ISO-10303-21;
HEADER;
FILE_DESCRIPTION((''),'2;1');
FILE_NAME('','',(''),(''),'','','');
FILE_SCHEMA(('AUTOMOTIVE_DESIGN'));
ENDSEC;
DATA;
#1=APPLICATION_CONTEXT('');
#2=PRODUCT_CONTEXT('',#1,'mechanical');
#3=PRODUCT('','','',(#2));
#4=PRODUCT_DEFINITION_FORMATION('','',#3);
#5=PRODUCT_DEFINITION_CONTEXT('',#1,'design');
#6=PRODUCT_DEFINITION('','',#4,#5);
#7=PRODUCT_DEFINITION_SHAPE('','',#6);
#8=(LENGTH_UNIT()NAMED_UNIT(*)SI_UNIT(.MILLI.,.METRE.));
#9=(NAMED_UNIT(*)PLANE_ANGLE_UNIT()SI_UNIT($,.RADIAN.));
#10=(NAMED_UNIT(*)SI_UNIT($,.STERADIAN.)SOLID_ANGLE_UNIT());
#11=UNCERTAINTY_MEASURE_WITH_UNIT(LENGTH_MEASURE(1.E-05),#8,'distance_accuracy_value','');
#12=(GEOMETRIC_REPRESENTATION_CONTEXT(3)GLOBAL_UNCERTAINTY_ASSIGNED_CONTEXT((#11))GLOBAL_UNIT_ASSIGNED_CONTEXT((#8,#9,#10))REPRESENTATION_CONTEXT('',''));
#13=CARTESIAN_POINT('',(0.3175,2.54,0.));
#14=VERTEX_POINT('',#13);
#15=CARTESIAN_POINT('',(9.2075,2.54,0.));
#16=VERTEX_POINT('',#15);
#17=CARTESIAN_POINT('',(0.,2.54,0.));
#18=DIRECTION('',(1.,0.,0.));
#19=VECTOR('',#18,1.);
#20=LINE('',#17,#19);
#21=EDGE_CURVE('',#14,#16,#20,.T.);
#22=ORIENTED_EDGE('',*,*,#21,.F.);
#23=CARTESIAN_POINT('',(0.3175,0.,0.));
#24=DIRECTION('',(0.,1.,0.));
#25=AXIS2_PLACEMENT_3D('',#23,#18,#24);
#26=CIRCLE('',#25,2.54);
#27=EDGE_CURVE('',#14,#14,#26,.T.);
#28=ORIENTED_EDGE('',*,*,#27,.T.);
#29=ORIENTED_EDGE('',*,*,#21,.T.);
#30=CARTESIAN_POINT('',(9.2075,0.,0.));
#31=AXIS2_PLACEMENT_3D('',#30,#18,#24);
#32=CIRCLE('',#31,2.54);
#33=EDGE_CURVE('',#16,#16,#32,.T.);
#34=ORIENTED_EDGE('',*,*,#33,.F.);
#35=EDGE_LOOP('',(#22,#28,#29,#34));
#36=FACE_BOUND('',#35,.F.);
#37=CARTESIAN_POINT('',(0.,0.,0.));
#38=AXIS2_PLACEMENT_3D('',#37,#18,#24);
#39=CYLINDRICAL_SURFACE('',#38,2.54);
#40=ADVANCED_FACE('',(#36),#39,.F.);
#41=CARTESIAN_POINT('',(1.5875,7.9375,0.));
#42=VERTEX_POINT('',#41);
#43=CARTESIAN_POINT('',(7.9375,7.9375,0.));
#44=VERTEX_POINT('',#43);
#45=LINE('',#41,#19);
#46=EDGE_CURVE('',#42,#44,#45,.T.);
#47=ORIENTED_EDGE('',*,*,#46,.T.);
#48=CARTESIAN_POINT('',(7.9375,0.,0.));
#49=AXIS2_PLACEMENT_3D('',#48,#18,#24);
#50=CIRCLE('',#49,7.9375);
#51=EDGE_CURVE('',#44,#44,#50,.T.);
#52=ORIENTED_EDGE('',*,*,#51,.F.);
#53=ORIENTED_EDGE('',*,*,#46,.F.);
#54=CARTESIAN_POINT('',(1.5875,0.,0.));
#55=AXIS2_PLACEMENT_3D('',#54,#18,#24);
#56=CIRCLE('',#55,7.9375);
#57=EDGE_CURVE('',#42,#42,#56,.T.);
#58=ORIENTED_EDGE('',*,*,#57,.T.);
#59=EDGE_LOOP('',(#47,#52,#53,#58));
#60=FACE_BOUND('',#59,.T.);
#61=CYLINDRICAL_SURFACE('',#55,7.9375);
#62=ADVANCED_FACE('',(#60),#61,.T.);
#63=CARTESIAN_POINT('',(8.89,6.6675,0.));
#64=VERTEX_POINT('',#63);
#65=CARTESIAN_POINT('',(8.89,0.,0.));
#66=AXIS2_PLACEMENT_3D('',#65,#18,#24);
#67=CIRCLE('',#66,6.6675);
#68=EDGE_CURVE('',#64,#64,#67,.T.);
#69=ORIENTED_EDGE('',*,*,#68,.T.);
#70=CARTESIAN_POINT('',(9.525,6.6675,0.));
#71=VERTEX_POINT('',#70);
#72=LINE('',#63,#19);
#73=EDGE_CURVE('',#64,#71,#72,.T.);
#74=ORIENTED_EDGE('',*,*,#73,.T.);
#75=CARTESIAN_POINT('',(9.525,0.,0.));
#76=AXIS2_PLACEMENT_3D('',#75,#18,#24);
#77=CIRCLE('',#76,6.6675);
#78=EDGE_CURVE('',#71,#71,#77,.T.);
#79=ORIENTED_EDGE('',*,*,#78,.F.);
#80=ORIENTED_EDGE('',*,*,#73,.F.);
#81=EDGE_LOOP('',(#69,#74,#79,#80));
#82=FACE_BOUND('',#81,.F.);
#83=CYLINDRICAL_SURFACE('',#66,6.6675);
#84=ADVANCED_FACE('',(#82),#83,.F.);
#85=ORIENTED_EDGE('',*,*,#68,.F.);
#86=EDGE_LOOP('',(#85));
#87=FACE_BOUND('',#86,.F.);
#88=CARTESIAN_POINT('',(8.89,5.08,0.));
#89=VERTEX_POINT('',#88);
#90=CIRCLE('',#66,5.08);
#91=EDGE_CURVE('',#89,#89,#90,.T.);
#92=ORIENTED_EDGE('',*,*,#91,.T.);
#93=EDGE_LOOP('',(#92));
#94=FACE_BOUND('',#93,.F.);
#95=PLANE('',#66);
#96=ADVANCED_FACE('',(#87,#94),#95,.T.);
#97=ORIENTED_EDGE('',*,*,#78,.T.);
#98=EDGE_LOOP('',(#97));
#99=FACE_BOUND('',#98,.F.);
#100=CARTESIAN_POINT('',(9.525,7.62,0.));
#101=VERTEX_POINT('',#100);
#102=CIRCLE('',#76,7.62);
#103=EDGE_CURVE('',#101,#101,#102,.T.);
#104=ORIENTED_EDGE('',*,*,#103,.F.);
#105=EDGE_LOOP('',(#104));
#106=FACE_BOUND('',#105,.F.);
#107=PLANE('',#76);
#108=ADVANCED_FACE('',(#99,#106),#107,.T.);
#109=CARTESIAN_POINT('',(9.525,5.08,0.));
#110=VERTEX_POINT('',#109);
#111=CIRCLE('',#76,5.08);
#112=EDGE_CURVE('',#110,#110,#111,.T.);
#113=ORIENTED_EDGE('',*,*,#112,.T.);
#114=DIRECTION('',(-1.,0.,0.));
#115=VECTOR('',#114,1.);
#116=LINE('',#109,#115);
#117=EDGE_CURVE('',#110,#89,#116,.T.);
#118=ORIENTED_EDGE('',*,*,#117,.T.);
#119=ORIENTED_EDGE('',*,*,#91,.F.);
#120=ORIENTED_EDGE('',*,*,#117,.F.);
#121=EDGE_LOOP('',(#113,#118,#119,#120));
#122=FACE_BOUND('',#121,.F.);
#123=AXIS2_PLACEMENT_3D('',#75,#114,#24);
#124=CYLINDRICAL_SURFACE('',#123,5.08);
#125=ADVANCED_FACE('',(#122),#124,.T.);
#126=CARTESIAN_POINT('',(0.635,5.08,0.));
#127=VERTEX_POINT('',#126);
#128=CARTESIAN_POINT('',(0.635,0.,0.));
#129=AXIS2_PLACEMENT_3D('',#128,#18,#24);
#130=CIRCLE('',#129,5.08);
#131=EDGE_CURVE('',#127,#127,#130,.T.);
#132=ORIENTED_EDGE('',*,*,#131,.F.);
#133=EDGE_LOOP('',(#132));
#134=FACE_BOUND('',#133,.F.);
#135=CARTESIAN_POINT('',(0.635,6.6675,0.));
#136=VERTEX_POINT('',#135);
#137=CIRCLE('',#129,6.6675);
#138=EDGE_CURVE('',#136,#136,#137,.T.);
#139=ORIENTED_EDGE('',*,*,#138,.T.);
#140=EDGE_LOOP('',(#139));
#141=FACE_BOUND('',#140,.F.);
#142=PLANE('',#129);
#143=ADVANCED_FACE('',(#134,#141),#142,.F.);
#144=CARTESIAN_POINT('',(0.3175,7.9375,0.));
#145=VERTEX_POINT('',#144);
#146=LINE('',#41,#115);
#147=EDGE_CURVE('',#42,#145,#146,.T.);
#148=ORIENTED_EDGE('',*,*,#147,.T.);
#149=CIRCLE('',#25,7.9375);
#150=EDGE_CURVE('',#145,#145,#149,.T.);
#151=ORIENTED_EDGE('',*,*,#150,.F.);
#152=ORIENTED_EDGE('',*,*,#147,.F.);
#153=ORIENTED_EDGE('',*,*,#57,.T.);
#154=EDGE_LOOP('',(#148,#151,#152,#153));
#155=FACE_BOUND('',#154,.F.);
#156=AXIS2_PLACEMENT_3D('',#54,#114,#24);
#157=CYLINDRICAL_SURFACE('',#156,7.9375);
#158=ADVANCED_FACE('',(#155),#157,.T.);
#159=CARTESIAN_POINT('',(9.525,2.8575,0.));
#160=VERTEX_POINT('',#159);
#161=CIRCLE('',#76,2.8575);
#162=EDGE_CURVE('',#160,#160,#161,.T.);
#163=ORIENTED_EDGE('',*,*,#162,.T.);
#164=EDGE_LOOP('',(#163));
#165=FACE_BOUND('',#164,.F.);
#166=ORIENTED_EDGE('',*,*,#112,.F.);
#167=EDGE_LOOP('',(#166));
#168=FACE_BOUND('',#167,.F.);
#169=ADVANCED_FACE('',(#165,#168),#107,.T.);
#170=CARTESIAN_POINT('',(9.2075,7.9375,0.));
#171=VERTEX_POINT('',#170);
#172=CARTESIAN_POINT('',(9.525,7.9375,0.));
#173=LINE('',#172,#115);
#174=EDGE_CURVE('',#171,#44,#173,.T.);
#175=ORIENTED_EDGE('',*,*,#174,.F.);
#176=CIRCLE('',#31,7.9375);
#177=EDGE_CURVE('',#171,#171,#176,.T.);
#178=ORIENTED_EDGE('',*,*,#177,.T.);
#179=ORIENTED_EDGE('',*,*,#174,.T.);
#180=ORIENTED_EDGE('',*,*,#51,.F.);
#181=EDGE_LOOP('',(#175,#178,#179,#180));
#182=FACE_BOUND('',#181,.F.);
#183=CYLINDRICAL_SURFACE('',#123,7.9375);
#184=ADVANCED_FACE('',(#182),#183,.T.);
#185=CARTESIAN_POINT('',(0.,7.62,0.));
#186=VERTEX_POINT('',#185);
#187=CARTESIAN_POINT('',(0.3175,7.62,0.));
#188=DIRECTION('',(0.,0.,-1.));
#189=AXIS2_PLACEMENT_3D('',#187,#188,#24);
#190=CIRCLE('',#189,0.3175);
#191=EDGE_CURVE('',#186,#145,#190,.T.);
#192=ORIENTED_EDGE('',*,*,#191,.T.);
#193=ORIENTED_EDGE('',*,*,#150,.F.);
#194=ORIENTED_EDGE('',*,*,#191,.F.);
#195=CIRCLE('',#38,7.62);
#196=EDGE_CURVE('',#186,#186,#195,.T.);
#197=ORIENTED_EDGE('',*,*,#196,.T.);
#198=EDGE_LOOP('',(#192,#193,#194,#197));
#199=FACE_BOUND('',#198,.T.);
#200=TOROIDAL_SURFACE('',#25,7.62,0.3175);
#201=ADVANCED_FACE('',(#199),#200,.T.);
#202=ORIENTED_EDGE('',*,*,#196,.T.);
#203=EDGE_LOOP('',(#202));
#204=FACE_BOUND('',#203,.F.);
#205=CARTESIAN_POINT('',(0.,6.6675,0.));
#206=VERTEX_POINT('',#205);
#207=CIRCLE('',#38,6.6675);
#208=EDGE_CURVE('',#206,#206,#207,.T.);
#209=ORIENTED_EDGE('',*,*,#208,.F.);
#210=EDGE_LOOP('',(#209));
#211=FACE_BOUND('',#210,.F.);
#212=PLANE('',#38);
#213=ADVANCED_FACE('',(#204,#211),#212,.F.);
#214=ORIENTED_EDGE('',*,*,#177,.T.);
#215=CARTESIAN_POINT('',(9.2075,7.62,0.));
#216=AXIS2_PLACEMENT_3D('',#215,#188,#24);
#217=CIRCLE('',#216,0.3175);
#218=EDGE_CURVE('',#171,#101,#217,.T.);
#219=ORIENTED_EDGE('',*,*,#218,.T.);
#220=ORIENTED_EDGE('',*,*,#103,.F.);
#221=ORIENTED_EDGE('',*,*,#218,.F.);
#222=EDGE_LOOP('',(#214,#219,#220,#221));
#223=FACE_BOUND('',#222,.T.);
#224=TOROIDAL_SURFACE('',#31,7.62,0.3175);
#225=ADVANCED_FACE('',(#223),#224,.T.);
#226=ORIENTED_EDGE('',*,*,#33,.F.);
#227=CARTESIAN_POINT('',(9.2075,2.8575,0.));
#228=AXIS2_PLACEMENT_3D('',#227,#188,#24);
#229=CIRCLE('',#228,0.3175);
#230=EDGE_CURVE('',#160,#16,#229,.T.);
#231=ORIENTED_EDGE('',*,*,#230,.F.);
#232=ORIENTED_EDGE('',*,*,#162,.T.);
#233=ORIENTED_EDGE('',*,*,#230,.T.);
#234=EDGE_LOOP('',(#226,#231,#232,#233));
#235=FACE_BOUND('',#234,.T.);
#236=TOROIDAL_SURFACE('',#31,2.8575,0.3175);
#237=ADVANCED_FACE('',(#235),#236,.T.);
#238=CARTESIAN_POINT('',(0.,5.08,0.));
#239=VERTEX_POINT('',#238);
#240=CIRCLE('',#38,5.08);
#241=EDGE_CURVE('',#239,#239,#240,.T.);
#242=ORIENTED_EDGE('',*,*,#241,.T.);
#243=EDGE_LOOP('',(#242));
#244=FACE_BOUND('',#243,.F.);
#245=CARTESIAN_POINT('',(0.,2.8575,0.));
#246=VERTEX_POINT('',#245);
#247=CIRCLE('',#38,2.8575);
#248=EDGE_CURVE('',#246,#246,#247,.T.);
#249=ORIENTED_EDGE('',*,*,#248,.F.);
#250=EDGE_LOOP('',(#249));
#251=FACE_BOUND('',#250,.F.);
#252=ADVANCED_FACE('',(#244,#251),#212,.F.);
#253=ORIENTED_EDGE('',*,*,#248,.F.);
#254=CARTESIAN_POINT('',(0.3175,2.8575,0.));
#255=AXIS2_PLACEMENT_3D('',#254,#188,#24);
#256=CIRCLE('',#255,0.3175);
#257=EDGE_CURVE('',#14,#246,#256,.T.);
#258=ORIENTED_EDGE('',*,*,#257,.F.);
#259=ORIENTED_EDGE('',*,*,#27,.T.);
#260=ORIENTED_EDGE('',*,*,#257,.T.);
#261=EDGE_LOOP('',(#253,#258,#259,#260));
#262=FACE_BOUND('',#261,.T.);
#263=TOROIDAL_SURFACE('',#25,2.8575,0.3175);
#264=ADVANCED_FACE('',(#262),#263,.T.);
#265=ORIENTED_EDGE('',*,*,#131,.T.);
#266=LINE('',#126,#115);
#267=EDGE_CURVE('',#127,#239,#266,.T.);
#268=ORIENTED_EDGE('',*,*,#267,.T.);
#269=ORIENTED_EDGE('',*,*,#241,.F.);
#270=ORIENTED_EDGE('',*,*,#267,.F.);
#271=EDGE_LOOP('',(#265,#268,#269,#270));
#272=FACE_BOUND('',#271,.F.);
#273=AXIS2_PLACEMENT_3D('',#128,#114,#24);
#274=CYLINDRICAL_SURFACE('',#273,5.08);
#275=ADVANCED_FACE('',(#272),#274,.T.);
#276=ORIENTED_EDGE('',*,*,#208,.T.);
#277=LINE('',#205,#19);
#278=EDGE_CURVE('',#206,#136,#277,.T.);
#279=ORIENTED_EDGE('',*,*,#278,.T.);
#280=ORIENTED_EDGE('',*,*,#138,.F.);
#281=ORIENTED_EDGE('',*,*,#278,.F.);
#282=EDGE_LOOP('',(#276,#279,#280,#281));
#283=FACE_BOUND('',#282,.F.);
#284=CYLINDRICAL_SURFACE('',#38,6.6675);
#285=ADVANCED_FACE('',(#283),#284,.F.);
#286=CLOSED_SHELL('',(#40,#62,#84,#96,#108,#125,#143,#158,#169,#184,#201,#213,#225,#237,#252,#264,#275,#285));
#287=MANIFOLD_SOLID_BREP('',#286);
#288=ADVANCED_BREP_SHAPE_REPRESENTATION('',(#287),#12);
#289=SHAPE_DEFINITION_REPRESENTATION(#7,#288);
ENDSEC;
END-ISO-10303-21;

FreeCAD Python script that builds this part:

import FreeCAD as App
import Part
import Sketcher
from FreeCAD import Vector
Q = App.Units.Quantity


def edges_at(feature, points):
    """Names of the edges that pass closest to the given points."""
    edges = feature.Shape.Edges
    near = lambda p: min(range(len(edges)), key=lambda i: edges[i].distToShape(Part.Vertex(*p))[0])
    return sorted({f"Edge{near(p) + 1}" for p in points})


def add_polygon(sketch, points):
    """Adds a closed chain of lines whose ends are joined by coincident constraints."""
    first, n = sketch.GeometryCount, len(points)
    for a, b in zip(points, points[1:] + points[:1]):
        sketch.addGeometry(Part.LineSegment(App.Vector(*a, 0), App.Vector(*b, 0)), False)
    for i in range(n):
        sketch.addConstraint(Sketcher.Constraint("Coincident", first + i, 2, first + (i + 1) % n, 1))

doc = App.newDocument("Part")
body = doc.addObject("PartDesign::Body", "Body")

sketch1 = doc.addObject("Sketcher::SketchObject", "Sketch")
body.addObject(sketch1)
sketch1.AttachmentSupport = (doc.XY_Plane, [""])
sketch1.MapMode = "FlatFace"
add_polygon(sketch1, [(9.5, 7.9), (0, 7.9), (0, 6.7), (0.6, 6.7), (0.6, 5.1), (0, 5.1), (0, 2.5), (9.5, 2.5), (9.5, 5.1), (8.9, 5.1), (8.9, 6.7), (9.5, 6.7)])
sketch1.addConstraint(Sketcher.Constraint("Horizontal", 0))
sketch1.addConstraint(Sketcher.Constraint("Vertical", 1))
sketch1.addConstraint(Sketcher.Constraint("Horizontal", 2))
sketch1.addConstraint(Sketcher.Constraint("Vertical", 3))
sketch1.addConstraint(Sketcher.Constraint("Horizontal", 4))
sketch1.addConstraint(Sketcher.Constraint("Vertical", 5))
sketch1.addConstraint(Sketcher.Constraint("Horizontal", 6))
sketch1.addConstraint(Sketcher.Constraint("Vertical", 7))
sketch1.addConstraint(Sketcher.Constraint("Horizontal", 8))
sketch1.addConstraint(Sketcher.Constraint("Vertical", 9))
sketch1.addConstraint(Sketcher.Constraint("Horizontal", 10))
sketch1.addConstraint(Sketcher.Constraint("Vertical", 11))
sketch1.addConstraint(Sketcher.Constraint("PointOnObject", 0, 2, -2))
sketch1.addConstraint(Sketcher.Constraint("PointOnObject", 4, 2, -2))
sketch1.addConstraint(Sketcher.Constraint("Horizontal", 4, 2, 7, 2))
sketch1.addConstraint(Sketcher.Constraint("Horizontal", 2, 2, 9, 2))
sketch1.addConstraint(Sketcher.Constraint("Vertical", 7, 2, 10, 2))
sketch1.addConstraint(Sketcher.Constraint("Equal", 4, 8))
sketch1.addConstraint(Sketcher.Constraint("DistanceY", 5, 2, 5, 1, Q("0.1 in")))
sketch1.addConstraint(Sketcher.Constraint("DistanceY", 1, 2, 1, 1, Q("0.05 in")))
sketch1.addConstraint(Sketcher.Constraint("DistanceY", -1, 1, 5, 2, Q("0.1 in")))
sketch1.addConstraint(Sketcher.Constraint("DistanceX", 0, 2, 0, 1, Q("0.375 in")))
sketch1.addConstraint(Sketcher.Constraint("DistanceX", 2, 1, 2, 2, Q("0.025 in")))
sketch1.addConstraint(Sketcher.Constraint("DistanceY", 3, 2, 3, 1, Q("0.0625 in")))
revolution = doc.addObject("PartDesign::Revolution", "Revolution")
body.addObject(revolution)
revolution.Profile = sketch1
revolution.ReferenceAxis = (sketch1, ["H_Axis"])
revolution.Angle = 360
doc.recompute()

fillet = doc.addObject("PartDesign::Fillet", "Fillet")
body.addObject(fillet)
fillet.Base = (revolution, edges_at(revolution, [
    (9.525, -7.938, 0),
    (0, -7.938, 0),
    (9.525, -2.54, 0),
    (0, -2.54, 0),
]))
fillet.Radius = Q("0.0125 in")

doc.recompute()
